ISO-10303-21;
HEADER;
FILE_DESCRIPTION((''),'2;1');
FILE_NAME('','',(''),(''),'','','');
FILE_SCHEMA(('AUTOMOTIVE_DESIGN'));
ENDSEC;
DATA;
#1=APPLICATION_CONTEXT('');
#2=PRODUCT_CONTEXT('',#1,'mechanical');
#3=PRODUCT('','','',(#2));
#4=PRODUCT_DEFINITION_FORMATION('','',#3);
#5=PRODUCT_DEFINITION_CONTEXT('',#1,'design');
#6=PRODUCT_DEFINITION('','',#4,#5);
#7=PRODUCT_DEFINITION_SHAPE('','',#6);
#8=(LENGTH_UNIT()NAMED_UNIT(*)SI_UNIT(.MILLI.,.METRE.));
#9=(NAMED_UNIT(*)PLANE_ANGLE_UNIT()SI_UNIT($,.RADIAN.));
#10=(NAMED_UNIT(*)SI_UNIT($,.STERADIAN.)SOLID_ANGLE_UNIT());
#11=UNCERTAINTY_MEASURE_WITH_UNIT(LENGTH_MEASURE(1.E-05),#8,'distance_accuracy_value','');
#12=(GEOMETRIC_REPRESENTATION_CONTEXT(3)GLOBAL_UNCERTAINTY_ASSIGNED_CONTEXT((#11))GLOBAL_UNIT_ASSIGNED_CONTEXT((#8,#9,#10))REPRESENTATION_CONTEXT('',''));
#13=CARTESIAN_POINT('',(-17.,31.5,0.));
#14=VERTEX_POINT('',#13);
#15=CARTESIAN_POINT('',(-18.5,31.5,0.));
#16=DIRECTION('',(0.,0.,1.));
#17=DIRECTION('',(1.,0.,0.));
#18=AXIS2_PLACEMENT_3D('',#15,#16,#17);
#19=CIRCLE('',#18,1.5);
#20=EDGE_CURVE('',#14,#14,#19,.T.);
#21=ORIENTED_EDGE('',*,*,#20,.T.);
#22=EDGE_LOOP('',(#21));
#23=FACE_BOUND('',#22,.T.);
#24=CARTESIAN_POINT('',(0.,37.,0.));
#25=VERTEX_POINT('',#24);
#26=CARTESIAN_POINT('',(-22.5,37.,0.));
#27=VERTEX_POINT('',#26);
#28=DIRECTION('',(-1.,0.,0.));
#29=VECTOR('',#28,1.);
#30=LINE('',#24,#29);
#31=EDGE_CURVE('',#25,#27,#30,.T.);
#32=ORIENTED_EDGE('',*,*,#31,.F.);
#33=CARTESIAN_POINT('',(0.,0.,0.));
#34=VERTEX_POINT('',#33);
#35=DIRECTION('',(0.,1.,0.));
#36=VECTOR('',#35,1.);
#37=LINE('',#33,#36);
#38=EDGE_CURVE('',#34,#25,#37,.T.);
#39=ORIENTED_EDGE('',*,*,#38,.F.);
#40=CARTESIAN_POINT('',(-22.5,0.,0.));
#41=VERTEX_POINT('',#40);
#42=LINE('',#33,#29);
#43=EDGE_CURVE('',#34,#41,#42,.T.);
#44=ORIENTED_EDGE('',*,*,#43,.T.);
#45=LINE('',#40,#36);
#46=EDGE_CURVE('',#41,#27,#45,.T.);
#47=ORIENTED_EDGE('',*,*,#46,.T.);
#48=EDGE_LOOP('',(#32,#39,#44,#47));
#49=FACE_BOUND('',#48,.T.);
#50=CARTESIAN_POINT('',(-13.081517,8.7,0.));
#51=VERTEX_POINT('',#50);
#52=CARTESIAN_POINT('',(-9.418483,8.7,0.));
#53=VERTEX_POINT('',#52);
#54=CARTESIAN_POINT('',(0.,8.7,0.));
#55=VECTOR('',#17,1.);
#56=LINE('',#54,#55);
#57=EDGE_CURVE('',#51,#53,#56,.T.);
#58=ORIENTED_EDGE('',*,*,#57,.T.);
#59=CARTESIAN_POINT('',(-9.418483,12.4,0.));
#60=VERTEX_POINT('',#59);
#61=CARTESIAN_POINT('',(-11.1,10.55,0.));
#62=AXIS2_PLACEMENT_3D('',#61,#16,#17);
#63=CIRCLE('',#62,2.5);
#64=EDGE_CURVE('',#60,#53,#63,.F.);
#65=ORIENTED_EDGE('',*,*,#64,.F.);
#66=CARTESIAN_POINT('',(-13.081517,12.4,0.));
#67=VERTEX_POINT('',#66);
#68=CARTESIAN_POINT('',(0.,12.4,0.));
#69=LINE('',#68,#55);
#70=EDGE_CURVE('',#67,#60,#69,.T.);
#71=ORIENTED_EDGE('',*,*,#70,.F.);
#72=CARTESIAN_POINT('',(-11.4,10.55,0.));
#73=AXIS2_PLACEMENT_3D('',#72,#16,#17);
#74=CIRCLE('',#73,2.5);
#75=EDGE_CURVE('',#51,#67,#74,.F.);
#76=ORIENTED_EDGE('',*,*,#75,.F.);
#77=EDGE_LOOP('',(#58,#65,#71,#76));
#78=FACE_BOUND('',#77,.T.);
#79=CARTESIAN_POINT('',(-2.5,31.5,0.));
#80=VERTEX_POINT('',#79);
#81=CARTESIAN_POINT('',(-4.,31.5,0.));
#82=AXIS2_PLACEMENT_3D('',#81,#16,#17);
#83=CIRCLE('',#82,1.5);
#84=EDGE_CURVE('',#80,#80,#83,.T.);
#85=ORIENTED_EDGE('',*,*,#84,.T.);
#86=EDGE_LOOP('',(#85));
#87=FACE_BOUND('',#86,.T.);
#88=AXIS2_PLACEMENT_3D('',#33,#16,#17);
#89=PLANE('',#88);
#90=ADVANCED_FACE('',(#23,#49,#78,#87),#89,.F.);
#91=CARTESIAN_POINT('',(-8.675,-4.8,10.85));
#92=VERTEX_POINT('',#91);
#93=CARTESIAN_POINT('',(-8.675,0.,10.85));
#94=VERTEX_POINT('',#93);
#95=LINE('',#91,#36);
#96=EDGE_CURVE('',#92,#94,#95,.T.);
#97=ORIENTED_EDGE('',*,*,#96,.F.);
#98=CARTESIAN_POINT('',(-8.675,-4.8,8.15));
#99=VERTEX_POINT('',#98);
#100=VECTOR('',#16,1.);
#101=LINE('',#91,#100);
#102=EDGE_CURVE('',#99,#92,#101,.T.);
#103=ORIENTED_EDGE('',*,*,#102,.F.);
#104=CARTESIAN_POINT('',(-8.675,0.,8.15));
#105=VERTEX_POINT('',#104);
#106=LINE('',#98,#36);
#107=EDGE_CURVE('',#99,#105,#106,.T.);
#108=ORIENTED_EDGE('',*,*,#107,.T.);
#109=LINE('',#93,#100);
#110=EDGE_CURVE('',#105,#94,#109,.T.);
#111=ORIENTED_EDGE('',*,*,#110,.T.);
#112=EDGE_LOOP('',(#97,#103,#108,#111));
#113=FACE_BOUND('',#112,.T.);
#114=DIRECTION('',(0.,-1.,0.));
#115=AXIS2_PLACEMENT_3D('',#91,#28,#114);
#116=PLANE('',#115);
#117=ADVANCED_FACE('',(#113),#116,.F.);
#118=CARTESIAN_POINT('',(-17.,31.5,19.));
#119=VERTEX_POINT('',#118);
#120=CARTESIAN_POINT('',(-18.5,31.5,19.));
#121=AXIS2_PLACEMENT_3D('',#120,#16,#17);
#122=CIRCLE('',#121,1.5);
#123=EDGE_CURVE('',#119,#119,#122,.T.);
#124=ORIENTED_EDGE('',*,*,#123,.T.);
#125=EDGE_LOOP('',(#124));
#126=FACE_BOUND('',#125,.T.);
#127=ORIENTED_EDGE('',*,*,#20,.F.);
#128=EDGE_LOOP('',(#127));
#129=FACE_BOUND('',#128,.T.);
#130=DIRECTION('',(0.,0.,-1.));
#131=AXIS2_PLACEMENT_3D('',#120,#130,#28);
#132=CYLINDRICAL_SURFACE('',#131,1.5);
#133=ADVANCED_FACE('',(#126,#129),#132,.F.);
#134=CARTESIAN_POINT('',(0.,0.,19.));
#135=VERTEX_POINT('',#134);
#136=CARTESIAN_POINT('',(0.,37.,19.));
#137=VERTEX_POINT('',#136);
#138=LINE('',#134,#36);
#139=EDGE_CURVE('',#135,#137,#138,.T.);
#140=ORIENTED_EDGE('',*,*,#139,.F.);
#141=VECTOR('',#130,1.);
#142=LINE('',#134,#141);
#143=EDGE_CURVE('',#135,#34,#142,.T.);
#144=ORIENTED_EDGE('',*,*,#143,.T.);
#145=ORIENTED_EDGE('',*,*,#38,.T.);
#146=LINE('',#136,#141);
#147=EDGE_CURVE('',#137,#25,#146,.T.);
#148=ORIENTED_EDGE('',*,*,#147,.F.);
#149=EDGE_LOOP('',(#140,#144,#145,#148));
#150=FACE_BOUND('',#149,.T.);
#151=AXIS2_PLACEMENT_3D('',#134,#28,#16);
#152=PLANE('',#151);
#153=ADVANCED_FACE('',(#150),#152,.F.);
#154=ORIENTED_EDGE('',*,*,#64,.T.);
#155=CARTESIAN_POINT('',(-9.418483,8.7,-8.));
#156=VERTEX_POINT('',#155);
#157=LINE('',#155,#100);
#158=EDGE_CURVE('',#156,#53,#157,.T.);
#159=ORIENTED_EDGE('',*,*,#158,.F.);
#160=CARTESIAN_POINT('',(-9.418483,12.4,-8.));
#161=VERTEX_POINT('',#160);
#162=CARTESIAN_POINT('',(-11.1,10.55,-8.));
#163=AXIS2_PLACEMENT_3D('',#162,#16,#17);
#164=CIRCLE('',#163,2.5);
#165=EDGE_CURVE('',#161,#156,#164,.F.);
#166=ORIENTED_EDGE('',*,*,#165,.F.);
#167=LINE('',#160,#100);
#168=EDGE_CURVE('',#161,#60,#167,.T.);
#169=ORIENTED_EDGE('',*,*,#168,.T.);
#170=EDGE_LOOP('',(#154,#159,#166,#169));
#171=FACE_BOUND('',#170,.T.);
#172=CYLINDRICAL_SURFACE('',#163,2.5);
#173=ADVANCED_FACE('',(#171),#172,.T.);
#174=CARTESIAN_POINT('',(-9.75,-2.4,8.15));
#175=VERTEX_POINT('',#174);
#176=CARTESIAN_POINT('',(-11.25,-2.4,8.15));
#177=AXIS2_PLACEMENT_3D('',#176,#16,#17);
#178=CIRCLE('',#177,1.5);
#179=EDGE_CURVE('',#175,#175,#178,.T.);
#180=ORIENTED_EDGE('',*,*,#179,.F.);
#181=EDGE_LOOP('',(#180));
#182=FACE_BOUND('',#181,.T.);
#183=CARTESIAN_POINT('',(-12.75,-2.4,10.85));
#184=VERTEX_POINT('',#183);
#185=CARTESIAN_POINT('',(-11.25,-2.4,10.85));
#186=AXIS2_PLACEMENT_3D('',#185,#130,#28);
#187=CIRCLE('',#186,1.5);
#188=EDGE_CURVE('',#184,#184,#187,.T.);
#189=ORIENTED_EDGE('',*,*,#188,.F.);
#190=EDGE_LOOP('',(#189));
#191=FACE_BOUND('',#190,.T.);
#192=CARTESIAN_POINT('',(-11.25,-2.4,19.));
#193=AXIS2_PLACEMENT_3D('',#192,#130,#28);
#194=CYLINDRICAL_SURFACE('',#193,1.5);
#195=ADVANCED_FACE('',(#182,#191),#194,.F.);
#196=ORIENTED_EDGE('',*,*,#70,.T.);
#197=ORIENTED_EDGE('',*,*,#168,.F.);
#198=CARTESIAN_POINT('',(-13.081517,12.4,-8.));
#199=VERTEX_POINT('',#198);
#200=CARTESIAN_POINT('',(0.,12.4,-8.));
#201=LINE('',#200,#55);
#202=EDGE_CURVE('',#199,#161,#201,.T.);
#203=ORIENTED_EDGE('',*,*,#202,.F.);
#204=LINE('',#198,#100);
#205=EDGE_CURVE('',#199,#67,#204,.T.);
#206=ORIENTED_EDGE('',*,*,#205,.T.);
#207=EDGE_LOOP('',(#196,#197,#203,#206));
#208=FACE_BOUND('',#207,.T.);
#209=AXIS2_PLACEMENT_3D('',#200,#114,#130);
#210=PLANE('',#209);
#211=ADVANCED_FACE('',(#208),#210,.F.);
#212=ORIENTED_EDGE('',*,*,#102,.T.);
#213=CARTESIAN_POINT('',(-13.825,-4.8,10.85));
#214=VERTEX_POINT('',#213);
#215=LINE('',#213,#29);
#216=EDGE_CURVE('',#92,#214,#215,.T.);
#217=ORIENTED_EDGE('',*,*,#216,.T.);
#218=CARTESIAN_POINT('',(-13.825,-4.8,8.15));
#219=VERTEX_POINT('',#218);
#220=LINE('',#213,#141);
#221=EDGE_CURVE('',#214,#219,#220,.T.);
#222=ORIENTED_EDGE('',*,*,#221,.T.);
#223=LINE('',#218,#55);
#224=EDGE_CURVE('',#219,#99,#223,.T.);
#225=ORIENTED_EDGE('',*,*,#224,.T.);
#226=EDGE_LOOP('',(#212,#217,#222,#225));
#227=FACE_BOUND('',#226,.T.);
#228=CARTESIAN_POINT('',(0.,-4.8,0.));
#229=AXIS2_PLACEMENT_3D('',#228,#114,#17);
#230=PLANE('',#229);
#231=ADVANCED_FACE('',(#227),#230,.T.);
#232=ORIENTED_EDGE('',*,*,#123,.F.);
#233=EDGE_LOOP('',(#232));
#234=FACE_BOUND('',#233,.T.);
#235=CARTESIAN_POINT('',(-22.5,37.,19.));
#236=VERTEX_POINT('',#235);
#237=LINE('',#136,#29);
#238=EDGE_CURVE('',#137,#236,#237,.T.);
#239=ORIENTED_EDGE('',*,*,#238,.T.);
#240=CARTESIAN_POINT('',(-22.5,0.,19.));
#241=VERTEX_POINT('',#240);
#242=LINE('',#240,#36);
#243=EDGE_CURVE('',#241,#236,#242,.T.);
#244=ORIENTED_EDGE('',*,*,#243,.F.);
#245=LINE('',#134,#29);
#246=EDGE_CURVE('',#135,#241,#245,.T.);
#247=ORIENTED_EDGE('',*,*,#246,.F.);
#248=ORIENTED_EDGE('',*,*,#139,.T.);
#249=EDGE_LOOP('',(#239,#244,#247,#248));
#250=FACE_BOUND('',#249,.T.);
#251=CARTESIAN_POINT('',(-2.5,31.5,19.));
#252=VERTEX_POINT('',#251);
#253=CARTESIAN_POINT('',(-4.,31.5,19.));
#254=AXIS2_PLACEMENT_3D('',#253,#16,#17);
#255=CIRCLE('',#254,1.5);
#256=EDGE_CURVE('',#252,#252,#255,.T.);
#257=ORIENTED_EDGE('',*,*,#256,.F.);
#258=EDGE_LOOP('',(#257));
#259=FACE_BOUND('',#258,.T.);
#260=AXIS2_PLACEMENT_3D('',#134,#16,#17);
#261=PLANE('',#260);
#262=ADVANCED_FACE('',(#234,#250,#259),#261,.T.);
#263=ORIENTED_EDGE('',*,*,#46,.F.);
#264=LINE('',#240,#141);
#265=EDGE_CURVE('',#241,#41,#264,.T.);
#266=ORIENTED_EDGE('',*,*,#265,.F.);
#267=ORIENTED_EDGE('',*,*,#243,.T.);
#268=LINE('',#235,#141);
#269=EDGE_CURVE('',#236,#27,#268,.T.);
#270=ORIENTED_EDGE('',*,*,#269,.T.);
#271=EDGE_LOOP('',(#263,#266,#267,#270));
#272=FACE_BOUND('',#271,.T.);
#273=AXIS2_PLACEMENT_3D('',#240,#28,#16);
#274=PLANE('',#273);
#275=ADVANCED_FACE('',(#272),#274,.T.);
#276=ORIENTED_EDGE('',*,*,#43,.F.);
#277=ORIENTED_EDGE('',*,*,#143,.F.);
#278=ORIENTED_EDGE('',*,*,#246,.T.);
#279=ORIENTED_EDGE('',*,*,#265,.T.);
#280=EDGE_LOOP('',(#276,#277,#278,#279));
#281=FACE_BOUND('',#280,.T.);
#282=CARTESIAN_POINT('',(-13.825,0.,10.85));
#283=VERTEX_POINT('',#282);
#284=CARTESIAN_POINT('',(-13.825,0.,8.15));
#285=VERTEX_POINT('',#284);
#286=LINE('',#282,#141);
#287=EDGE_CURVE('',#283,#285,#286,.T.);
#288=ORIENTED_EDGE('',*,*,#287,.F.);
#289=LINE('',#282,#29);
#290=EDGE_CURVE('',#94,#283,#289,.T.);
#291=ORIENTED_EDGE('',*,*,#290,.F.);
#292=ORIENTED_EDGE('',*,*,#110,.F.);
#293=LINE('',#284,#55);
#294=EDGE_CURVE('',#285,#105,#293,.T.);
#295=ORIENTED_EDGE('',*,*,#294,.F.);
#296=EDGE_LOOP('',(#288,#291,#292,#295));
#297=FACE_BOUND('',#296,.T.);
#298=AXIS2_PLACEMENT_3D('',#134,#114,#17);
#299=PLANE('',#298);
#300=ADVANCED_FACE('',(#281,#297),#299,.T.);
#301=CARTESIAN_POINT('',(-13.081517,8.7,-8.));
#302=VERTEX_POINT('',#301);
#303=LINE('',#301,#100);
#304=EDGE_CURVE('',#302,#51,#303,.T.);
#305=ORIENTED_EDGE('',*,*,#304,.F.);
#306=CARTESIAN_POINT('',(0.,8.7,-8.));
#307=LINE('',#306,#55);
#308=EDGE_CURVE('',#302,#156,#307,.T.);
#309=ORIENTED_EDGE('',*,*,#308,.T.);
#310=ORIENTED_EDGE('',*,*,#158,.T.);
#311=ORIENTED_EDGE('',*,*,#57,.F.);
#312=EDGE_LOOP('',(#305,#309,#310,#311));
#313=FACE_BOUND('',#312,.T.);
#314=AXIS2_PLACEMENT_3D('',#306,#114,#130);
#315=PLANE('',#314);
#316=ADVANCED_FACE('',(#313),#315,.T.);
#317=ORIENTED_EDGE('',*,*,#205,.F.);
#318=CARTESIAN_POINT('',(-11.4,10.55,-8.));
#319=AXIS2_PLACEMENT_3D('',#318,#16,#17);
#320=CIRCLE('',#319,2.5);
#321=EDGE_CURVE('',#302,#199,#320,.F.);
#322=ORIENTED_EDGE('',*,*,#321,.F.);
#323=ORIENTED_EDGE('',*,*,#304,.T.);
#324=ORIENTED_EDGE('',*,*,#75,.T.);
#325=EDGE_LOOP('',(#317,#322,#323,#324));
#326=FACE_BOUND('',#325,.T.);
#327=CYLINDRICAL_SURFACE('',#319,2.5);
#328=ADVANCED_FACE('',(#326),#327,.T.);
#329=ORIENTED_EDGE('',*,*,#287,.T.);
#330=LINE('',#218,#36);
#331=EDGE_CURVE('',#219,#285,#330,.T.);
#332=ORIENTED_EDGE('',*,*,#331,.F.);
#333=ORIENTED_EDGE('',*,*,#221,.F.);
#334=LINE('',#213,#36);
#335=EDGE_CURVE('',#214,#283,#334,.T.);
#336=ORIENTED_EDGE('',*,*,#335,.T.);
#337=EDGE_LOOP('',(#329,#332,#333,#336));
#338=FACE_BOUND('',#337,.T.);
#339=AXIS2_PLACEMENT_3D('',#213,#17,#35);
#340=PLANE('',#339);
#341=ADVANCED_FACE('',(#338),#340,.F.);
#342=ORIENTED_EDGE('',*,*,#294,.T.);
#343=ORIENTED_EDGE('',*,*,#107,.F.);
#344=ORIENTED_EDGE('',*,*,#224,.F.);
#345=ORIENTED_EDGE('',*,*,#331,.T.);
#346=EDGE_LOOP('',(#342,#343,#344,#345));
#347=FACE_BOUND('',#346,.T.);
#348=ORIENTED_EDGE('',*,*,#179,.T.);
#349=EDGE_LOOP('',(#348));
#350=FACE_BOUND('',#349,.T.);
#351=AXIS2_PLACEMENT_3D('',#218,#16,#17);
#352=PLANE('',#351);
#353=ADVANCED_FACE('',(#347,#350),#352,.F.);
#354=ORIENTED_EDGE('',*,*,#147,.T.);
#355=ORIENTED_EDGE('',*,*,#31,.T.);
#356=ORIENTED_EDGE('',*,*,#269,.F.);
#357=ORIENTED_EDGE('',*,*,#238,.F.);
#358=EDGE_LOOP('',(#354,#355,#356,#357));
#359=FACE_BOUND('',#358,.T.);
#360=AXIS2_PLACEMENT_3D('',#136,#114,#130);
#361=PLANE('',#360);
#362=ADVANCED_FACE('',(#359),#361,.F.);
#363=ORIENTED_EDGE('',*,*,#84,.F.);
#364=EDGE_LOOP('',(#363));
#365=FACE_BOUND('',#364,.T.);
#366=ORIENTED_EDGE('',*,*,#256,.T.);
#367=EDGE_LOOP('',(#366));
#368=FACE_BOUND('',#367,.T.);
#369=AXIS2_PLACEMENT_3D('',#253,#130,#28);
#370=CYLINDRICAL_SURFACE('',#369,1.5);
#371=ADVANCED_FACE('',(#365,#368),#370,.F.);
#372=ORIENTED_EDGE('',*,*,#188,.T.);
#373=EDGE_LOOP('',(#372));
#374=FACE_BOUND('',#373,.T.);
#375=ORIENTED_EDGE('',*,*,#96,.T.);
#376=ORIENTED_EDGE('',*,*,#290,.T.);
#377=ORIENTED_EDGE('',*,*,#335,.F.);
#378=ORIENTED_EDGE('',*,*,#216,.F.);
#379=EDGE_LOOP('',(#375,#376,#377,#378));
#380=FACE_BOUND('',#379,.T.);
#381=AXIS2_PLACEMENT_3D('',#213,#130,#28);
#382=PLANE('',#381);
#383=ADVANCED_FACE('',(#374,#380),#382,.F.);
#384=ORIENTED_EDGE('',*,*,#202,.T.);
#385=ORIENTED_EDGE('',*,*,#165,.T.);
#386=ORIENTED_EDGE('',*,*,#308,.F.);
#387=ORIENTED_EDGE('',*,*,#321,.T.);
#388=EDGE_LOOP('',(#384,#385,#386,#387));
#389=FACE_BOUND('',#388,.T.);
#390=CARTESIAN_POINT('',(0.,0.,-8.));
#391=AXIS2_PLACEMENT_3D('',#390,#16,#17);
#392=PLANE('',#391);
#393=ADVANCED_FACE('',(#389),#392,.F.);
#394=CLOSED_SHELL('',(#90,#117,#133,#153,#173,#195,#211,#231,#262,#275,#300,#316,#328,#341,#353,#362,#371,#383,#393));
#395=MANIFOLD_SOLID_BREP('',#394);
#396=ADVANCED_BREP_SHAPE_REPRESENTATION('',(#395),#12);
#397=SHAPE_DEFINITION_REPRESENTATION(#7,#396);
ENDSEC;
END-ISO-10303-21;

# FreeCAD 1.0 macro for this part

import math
import FreeCAD as App
import Part
import Sketcher
from FreeCAD import Vector
Q = App.Units.Quantity

doc = App.newDocument("Part")
body = doc.addObject("PartDesign::Body", "Body")

# Sketch on XY plane
sketch1 = doc.addObject("Sketcher::SketchObject", "Sketch")
body.addObject(sketch1)
sketch1.AttachmentSupport = (doc.XY_Plane, [""])
sketch1.MapMode = "FlatFace"
sketch1.addGeometry([
    Part.LineSegment(Vector(-22.5, 37, 0), Vector(-22.5, 0, 0)),  # 0
    Part.LineSegment(Vector(-22.5, 0, 0), Vector(0, 0, 0)),  # 1
    Part.LineSegment(Vector(0, 0, 0), Vector(0, 37, 0)),  # 2
    Part.LineSegment(Vector(0, 37, 0), Vector(-22.5, 37, 0)),  # 3
    Part.Circle(Vector(-18.5, 31.5, 0), Vector(0, 0, 1), 1.5),  # 4
    Part.Circle(Vector(-4, 31.5, 0), Vector(0, 0, 1), 1.5),  # 5
], False)
sketch1.addConstraint([
    Sketcher.Constraint("Coincident", 0, 2, 1, 1),
    Sketcher.Constraint("Coincident", 1, 2, 2, 1),
    Sketcher.Constraint("Coincident", 2, 2, 3, 1),
    Sketcher.Constraint("Coincident", 3, 2, 0, 1),
    Sketcher.Constraint("Vertical", 0),
    Sketcher.Constraint("Horizontal", 1),
    Sketcher.Constraint("Vertical", 2),
    Sketcher.Constraint("Horizontal", 3),
    Sketcher.Constraint("Coincident", 1, 2, -1, 1),
    Sketcher.Constraint("Equal", 4, 5),
    Sketcher.Constraint("Horizontal", 4, 3, 5, 3),
    Sketcher.Constraint("Diameter", 4, Q("3 mm")),
    Sketcher.Constraint("DistanceY", 0, 2, 0, 1, Q("37 mm")),
    Sketcher.Constraint("DistanceX", 1, 1, 1, 2, Q("22.5 mm")),
    Sketcher.Constraint("DistanceX", 5, 3, -1, 1, Q("4 mm")),
    Sketcher.Constraint("DistanceX", 0, 2, 4, 3, Q("4 mm")),
    Sketcher.Constraint("DistanceY", -1, 1, 4, 3, Q("31.5 mm")),
])
pad1 = doc.addObject("PartDesign::Pad", "Pad")
body.addObject(pad1)
pad1.Profile = sketch1
pad1.Length = 19

# Sketch on XY plane
sketch2 = doc.addObject("Sketcher::SketchObject", "Sketch001")
body.addObject(sketch2)
sketch2.AttachmentSupport = (doc.XY_Plane, [""])
sketch2.MapMode = "FlatFace"
sketch2.addGeometry([
    Part.ArcOfCircle(Part.Circle(Vector(-11.1, 10.6, 0), Vector(0, 0, 1), 2.5), math.radians(-48), math.radians(48)),
    Part.LineSegment(Vector(-9.4, 12.4, 0), Vector(-13.1, 12.4, 0)),
    Part.ArcOfCircle(Part.Circle(Vector(-11.4, 10.6, 0), Vector(0, 0, 1), 2.5), math.radians(132), math.radians(228)),
    Part.LineSegment(Vector(-13.1, 8.7, 0), Vector(-9.4, 8.7, 0)),
], False)
sketch2.addConstraint([
    Sketcher.Constraint("Coincident", 0, 2, 1, 1),
    Sketcher.Constraint("Coincident", 1, 2, 2, 1),
    Sketcher.Constraint("Coincident", 2, 2, 3, 1),
    Sketcher.Constraint("Coincident", 3, 2, 0, 1),
    Sketcher.Constraint("Horizontal", 1),
    Sketcher.Constraint("Horizontal", 3),
    Sketcher.Constraint("Equal", 0, 2),
    Sketcher.Constraint("Horizontal", 0, 3, 2, 3),
    Sketcher.Constraint("Vertical", 1, 2, 2, 2),
    Sketcher.Constraint("Radius", 0, Q("2.5 mm")),
    Sketcher.Constraint("DistanceX", 0, 3, -1, 1, Q("11.1 mm")),
    Sketcher.Constraint("DistanceX", 2, 3, -1, 1, Q("11.4 mm")),
    Sketcher.Constraint("DistanceY", -1, 1, 0, 2, Q("12.4 mm")),
    Sketcher.Constraint("DistanceY", -1, 1, 2, 2, Q("8.7 mm")),
])
pad2 = doc.addObject("PartDesign::Pad", "Pad001")
body.addObject(pad2)
pad2.Profile = sketch2
pad2.Length = 8
pad2.Reversed = True

# Sketch on XZ plane
sketch3 = doc.addObject("Sketcher::SketchObject", "Sketch002")
body.addObject(sketch3)
sketch3.AttachmentSupport = (doc.XZ_Plane, [""])
sketch3.MapMode = "FlatFace"
sketch3.addGeometry([
    Part.LineSegment(Vector(-13.8, 10.8, 0), Vector(-13.8, 8.2, 0)),
    Part.LineSegment(Vector(-13.8, 8.2, 0), Vector(-8.7, 8.2, 0)),
    Part.LineSegment(Vector(-8.7, 8.2, 0), Vector(-8.7, 10.8, 0)),
    Part.LineSegment(Vector(-8.7, 10.8, 0), Vector(-13.8, 10.8, 0)),
], False)
sketch3.addConstraint([
    Sketcher.Constraint("Coincident", 0, 2, 1, 1),
    Sketcher.Constraint("Coincident", 1, 2, 2, 1),
    Sketcher.Constraint("Coincident", 2, 2, 3, 1),
    Sketcher.Constraint("Coincident", 3, 2, 0, 1),
    Sketcher.Constraint("Vertical", 0),
    Sketcher.Constraint("Horizontal", 1),
    Sketcher.Constraint("Vertical", 2),
    Sketcher.Constraint("Horizontal", 3),
    Sketcher.Constraint("DistanceY", 0, 2, 0, 1, Q("2.7 mm")),
    Sketcher.Constraint("DistanceX", 1, 1, 1, 2, Q("5.15 mm")),
    Sketcher.Constraint("DistanceY", -1, 1, 0, 2, Q("8.15 mm")),
    Sketcher.Constraint("DistanceX", 0, 2, -1, 1, Q("13.825 mm")),
])
pad3 = doc.addObject("PartDesign::Pad", "Pad002")
body.addObject(pad3)
pad3.Profile = sketch3
pad3.Length = 4.8

# Sketch on XY plane
sketch4 = doc.addObject("Sketcher::SketchObject", "Sketch003")
body.addObject(sketch4)
sketch4.AttachmentSupport = (doc.XY_Plane, [""])
sketch4.MapMode = "FlatFace"
sketch4.AttachmentOffset = App.Placement(Vector(0, 0, 8.15), App.Rotation())
sketch4.addGeometry(Part.Circle(Vector(-11.2, -2.4, 0), Vector(0, 0, 1), 1.5), False)
sketch4.addConstraint([
    Sketcher.Constraint("Diameter", 0, Q("3 mm")),
    Sketcher.Constraint("DistanceY", 0, 3, -1, 1, Q("2.4 mm")),
    Sketcher.Constraint("DistanceX", 0, 3, -1, 1, Q("11.25 mm")),
])
pocket1 = doc.addObject("PartDesign::Pocket", "Pocket")
body.addObject(pocket1)
pocket1.Profile = sketch4
pocket1.Type = "ThroughAll"
pocket1.Midplane = True

doc.recompute()
